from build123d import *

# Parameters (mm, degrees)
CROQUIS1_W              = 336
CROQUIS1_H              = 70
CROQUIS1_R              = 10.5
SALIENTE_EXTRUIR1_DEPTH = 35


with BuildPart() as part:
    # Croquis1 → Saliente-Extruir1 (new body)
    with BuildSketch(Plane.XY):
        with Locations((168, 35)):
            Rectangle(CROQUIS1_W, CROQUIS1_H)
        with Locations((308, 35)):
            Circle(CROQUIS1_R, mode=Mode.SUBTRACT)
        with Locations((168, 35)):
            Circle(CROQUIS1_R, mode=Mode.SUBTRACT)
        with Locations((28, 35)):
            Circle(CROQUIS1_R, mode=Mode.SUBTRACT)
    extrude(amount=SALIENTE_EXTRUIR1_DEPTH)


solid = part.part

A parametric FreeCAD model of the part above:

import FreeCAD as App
import Part
import Sketcher

V = App.Vector
Q = App.Units.Quantity


def add_polygon(sketch, points):
    """Adds a closed chain of lines whose ends are joined by coincident constraints."""
    first, n = sketch.GeometryCount, len(points)
    for a, b in zip(points, points[1:] + points[:1]):
        sketch.addGeometry(Part.LineSegment(App.Vector(*a, 0), App.Vector(*b, 0)), False)
    for i in range(n):
        sketch.addConstraint(Sketcher.Constraint("Coincident", first + i, 2, first + (i + 1) % n, 1))

doc = App.newDocument("Part")
body = doc.addObject("PartDesign::Body", "Body")

# Sketch on XY plane
sketch1 = body.newObject("Sketcher::SketchObject", "Sketch")
sketch1.AttachmentSupport = (doc.getObject("XY_Plane"), [""])
sketch1.MapMode = "FlatFace"
add_polygon(sketch1, [(0, 70), (0, 0), (336, 0), (336, 70)])  # lines 0-3
sketch1.addGeometry(Part.Circle(V(28, 35, 0), V(0, 0, 1), 10.5), False)  # 4
sketch1.addGeometry(Part.Circle(V(168, 35, 0), V(0, 0, 1), 10.5), False)  # 5
sketch1.addGeometry(Part.Circle(V(308, 35, 0), V(0, 0, 1), 10.5), False)  # 6
sketch1.addConstraint([
    Sketcher.Constraint("Vertical", 0),
    Sketcher.Constraint("Horizontal", 1),
    Sketcher.Constraint("Vertical", 2),
    Sketcher.Constraint("Horizontal", 3),
    Sketcher.Constraint("Coincident", 0, 2, -1, 1),
    Sketcher.Constraint("Equal", 4, 5),
    Sketcher.Constraint("Equal", 5, 6),
    Sketcher.Constraint("Horizontal", 4, 3, 5, 3),
    Sketcher.Constraint("Horizontal", 5, 3, 6, 3),
    Sketcher.Constraint("Diameter", 4, Q("21 mm")),
    Sketcher.Constraint("DistanceX", 1, 1, 1, 2, Q("336 mm")),
    Sketcher.Constraint("DistanceY", 0, 2, 0, 1, Q("70 mm")),
    Sketcher.Constraint("DistanceX", -1, 1, 4, 3, Q("28 mm")),
    Sketcher.Constraint("DistanceY", -1, 1, 4, 3, Q("35 mm")),
    Sketcher.Constraint("DistanceX", -1, 1, 5, 3, Q("168 mm")),
    Sketcher.Constraint("DistanceX", -1, 1, 6, 3, Q("308 mm")),
])
pad1 = body.newObject("PartDesign::Pad", "Pad")
pad1.Profile = sketch1
pad1.Length = 35

doc.recompute()
